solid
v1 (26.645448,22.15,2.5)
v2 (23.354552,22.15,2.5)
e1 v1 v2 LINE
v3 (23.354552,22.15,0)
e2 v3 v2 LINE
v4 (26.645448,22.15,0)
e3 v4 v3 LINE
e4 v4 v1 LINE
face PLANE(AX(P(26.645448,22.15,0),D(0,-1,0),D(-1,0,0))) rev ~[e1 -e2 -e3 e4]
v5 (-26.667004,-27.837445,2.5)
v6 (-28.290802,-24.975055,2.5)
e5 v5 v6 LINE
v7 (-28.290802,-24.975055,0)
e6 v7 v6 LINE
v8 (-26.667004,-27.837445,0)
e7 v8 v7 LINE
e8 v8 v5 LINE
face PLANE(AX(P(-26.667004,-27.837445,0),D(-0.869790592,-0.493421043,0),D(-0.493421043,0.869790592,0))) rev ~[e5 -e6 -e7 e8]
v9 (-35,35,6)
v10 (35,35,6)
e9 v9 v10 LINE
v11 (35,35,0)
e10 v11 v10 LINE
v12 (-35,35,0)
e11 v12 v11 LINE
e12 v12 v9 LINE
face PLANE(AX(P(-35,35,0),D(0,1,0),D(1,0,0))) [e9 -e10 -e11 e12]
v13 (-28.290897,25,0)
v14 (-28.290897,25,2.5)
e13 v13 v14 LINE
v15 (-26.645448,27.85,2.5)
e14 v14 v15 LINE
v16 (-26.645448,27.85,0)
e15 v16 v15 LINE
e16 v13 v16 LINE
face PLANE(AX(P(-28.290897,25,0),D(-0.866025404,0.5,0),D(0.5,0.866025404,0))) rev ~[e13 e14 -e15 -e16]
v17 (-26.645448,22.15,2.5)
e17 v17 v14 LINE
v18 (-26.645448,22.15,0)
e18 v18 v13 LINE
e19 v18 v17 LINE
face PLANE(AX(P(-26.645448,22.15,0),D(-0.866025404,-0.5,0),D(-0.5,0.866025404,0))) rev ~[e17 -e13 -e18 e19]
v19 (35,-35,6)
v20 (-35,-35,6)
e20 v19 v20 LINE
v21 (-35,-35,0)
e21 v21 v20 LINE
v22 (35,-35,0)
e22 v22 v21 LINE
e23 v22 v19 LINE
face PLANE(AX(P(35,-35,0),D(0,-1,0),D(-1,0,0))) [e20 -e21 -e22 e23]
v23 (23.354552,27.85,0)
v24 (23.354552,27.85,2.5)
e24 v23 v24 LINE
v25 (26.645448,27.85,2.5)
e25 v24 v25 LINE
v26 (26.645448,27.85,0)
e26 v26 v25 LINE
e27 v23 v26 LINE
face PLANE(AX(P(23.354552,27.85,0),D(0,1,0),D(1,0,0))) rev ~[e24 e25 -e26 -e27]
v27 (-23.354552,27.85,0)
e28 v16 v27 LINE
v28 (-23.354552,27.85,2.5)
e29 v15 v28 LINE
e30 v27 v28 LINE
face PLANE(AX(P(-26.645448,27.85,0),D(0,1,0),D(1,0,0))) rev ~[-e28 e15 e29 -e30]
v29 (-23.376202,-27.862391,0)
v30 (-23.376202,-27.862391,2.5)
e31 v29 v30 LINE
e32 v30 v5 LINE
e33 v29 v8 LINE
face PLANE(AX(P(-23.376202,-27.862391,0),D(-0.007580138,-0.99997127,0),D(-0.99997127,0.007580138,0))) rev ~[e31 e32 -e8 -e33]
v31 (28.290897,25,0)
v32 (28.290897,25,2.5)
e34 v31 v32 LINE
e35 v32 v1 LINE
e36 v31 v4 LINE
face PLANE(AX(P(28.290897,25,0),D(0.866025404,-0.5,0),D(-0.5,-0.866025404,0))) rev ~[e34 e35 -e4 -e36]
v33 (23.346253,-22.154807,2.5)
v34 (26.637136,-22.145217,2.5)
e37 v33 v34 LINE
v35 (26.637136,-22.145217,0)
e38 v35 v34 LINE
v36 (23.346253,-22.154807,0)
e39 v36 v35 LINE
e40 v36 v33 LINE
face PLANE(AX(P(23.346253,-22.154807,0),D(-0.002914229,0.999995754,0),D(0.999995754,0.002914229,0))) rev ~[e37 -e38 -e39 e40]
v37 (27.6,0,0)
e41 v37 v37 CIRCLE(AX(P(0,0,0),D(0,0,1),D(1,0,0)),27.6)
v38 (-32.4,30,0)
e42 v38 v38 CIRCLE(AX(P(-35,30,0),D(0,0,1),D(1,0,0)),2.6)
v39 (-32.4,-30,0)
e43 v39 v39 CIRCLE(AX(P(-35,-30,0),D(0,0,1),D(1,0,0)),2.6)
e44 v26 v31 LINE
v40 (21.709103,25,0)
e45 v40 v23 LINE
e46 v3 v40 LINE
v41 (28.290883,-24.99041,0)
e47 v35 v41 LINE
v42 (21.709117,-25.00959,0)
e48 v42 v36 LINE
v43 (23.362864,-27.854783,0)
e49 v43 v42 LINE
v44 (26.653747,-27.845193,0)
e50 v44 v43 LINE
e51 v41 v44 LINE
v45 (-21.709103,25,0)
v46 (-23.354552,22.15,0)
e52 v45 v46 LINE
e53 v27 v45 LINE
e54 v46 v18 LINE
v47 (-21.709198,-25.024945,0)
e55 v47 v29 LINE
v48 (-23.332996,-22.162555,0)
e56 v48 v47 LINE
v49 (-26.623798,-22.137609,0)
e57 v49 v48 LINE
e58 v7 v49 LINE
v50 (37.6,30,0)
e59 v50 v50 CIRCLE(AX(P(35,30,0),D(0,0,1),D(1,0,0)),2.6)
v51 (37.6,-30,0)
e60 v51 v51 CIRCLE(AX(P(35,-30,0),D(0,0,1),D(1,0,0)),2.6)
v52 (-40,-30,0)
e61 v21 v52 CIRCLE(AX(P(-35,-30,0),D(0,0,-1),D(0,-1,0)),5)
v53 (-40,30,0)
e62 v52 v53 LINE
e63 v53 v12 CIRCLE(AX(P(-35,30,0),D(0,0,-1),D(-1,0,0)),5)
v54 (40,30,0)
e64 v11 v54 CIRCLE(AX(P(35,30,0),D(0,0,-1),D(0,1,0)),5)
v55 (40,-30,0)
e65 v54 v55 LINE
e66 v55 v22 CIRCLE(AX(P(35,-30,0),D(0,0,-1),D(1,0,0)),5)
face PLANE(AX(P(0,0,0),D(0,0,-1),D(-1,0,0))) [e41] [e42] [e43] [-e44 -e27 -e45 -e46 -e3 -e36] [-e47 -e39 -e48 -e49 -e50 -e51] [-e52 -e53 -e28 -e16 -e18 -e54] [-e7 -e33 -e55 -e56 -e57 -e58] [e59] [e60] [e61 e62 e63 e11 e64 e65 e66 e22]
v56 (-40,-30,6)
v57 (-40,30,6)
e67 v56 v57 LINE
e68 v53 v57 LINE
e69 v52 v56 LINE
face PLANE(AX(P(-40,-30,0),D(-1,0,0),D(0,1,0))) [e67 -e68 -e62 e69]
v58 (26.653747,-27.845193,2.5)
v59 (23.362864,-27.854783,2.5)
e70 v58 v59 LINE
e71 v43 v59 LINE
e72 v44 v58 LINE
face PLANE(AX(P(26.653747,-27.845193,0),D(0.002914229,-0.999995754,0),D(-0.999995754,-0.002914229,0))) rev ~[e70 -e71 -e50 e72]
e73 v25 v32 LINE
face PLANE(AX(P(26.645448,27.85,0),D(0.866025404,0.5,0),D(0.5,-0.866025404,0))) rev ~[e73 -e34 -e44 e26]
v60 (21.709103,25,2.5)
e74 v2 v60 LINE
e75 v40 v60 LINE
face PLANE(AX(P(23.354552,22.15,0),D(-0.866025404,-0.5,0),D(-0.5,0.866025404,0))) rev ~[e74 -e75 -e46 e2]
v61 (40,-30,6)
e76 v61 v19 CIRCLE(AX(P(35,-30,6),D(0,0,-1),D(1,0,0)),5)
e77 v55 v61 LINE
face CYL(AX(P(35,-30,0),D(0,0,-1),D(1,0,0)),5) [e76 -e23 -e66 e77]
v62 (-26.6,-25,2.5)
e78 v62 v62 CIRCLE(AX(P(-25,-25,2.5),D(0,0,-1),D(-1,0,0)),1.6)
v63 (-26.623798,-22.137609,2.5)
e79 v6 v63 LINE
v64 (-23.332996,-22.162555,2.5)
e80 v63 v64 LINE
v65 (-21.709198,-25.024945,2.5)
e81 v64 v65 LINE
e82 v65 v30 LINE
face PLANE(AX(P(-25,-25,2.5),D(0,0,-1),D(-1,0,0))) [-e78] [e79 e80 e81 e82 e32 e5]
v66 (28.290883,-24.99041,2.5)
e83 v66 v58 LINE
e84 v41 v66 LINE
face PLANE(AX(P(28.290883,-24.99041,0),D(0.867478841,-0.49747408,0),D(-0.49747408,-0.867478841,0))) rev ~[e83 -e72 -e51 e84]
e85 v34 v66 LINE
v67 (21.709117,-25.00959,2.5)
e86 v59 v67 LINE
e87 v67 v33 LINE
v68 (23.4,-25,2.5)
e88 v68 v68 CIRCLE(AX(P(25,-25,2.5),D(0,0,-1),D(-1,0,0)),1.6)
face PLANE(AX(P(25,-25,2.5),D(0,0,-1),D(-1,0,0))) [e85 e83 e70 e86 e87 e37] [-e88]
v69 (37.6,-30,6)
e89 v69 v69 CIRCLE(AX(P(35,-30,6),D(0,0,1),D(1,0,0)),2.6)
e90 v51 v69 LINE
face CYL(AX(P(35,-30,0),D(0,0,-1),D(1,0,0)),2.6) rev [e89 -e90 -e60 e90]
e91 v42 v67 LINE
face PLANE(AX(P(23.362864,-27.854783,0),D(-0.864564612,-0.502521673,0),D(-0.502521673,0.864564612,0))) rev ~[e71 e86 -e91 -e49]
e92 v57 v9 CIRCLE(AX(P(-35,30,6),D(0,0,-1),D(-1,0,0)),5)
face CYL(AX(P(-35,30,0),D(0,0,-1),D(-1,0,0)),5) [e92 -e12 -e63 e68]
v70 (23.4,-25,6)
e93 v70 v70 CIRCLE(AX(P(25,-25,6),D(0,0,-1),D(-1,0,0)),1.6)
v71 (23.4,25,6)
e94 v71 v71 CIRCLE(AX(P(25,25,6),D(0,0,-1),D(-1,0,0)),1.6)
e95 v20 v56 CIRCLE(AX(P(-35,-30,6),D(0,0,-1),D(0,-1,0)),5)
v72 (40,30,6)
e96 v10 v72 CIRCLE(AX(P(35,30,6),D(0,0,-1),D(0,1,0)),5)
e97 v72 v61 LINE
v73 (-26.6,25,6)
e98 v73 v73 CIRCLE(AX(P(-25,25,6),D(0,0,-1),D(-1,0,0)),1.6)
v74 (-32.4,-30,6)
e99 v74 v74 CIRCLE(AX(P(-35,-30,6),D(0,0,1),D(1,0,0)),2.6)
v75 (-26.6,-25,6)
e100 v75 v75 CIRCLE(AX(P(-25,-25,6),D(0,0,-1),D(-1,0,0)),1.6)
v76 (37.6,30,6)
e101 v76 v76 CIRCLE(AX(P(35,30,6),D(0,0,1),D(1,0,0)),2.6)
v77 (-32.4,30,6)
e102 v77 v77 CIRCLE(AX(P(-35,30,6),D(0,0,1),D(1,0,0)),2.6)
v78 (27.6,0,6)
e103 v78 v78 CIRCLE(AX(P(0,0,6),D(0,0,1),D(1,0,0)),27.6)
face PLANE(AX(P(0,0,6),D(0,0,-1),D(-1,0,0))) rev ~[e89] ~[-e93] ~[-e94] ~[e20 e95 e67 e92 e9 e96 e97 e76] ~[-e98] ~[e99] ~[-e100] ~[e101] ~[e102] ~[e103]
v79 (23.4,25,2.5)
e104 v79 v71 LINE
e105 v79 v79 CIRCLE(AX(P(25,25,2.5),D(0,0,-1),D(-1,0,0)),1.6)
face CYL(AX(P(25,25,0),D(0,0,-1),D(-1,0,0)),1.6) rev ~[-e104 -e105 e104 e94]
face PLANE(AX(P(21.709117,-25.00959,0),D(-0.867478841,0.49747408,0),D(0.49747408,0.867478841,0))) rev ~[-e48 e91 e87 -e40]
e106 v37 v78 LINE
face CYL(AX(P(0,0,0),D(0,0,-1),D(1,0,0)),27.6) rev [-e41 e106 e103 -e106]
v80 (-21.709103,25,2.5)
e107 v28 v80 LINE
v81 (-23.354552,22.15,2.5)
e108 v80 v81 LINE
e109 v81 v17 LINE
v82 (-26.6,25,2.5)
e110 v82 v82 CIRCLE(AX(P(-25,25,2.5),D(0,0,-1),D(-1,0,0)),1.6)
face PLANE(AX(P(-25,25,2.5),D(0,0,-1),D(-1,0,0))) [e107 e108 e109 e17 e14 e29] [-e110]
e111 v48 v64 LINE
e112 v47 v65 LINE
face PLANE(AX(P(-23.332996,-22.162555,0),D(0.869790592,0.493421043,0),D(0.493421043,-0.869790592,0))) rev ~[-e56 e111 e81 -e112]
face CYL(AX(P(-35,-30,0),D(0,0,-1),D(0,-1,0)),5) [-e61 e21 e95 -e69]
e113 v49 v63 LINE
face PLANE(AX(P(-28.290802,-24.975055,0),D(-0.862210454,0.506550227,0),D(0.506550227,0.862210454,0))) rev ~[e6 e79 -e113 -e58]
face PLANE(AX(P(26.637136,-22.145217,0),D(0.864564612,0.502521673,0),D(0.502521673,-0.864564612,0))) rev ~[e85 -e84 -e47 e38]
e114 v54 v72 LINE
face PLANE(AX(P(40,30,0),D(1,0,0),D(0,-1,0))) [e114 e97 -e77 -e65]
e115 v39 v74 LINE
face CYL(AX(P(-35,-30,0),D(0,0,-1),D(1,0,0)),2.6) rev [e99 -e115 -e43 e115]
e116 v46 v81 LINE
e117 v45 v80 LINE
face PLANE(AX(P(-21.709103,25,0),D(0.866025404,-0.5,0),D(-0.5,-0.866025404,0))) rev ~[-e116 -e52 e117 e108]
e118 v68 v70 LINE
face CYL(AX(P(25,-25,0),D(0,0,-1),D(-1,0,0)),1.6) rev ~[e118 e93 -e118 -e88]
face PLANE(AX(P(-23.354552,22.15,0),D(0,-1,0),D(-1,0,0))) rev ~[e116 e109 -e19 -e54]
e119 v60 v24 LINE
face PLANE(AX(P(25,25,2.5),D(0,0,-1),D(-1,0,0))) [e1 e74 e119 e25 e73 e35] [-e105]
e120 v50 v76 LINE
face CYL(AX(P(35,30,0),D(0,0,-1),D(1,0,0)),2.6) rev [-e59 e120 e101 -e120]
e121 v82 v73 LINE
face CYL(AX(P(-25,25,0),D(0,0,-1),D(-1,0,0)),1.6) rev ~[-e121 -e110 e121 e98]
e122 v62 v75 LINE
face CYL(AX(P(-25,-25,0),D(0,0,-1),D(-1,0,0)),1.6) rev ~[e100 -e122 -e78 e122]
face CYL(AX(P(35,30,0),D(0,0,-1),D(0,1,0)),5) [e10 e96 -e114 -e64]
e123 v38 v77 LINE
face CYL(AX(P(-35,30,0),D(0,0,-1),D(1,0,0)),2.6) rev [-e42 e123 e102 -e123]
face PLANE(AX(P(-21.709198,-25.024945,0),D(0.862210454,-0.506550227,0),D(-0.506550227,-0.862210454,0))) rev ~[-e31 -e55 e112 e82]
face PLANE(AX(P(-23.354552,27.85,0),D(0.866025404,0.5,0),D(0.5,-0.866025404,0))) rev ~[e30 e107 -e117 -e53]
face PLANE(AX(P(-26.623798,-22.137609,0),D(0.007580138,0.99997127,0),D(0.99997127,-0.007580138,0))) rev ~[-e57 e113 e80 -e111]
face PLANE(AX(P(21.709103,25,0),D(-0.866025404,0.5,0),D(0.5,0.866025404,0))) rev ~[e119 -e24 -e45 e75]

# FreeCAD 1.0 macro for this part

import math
import FreeCAD as App
import Part
import Sketcher

doc = App.newDocument("Part")
params = doc.addObject("Spreadsheet::Sheet", "Params")
for row, (alias, value) in enumerate([
    ("sketch1_radius", "5 mm"),
    ("sketch1_diameter", "5.2 mm"),
    ("sketch1_diameter2", "55.2 mm"),
    ("sketch1_width", "70 mm"),
    ("sketch1_height", "60 mm"),
    ("pad1_length", "6 mm"),
    ("sketch2_diameter", "3.2 mm"),
    ("pocket2_length", "2.5 mm"),
], start=1):
    params.set(f"A{row}", alias)
    params.set(f"B{row}", "=" + value)
    params.setAlias(f"B{row}", alias)

body = doc.addObject("PartDesign::Body", "Body")

sketch1 = doc.addObject("Sketcher::SketchObject", "Sketch")
body.addObject(sketch1)
sketch1.AttachmentSupport = (doc.XY_Plane, [""])
sketch1.MapMode = "FlatFace"
sketch1.addGeometry([
    Part.LineSegment(App.Vector(35, 35, 0), App.Vector(-35, 35, 0)),
    Part.ArcOfCircle(Part.Circle(App.Vector(-35, 30, 0), App.Vector(0, 0, 1), 5), math.radians(90), math.radians(180)),
    Part.LineSegment(App.Vector(-40, 30, 0), App.Vector(-40, -30, 0)),
    Part.ArcOfCircle(Part.Circle(App.Vector(-35, -30, 0), App.Vector(0, 0, 1), 5), math.radians(180), math.radians(270)),
    Part.LineSegment(App.Vector(-35, -35, 0), App.Vector(35, -35, 0)),
    Part.ArcOfCircle(Part.Circle(App.Vector(35, -30, 0), App.Vector(0, 0, 1), 5), math.radians(-90), math.radians(0)),
    Part.LineSegment(App.Vector(40, -30, 0), App.Vector(40, 30, 0)),
    Part.ArcOfCircle(Part.Circle(App.Vector(35, 30, 0), App.Vector(0, 0, 1), 5), math.radians(0), math.radians(90)),
    Part.Circle(App.Vector(35, -30, 0), App.Vector(0, 0, 1), 2.6),
    Part.Circle(App.Vector(-35, -30, 0), App.Vector(0, 0, 1), 2.6),
    Part.Circle(App.Vector(35, 30, 0), App.Vector(0, 0, 1), 2.6),
    Part.Circle(App.Vector(0, 0, 0), App.Vector(0, 0, 1), 27.6),
    Part.Circle(App.Vector(-35, 30, 0), App.Vector(0, 0, 1), 2.6),
], False)
sketch1.addConstraint([
    Sketcher.Constraint("Tangent", 0, 2, 1, 1),
    Sketcher.Constraint("Tangent", 1, 2, 2, 1),
    Sketcher.Constraint("Tangent", 2, 2, 3, 1),
    Sketcher.Constraint("Tangent", 3, 2, 4, 1),
    Sketcher.Constraint("Tangent", 4, 2, 5, 1),
    Sketcher.Constraint("Tangent", 5, 2, 6, 1),
    Sketcher.Constraint("Tangent", 6, 2, 7, 1),
    Sketcher.Constraint("Tangent", 7, 2, 0, 1),
    Sketcher.Constraint("Horizontal", 0),
    Sketcher.Constraint("Vertical", 2),
    Sketcher.Constraint("Horizontal", 4),
    Sketcher.Constraint("Vertical", 6),
    Sketcher.Constraint("Coincident", 11, 3, -1, 1),
    Sketcher.Constraint("Coincident", 8, 3, 5, 3),
    Sketcher.Constraint("Coincident", 9, 3, 3, 3),
    Sketcher.Constraint("Coincident", 10, 3, 7, 3),
    Sketcher.Constraint("Coincident", 12, 3, 1, 3),
    Sketcher.Constraint("Equal", 1, 3),
    Sketcher.Constraint("Equal", 3, 5),
    Sketcher.Constraint("Equal", 5, 7),
    Sketcher.Constraint("Equal", 8, 9),
    Sketcher.Constraint("Equal", 9, 10),
    Sketcher.Constraint("Equal", 10, 12),
    Sketcher.Constraint("Symmetric", 1, 3, 5, 3, -1, 1),
    Sketcher.Constraint("Radius", 1, 5.0),
    Sketcher.Constraint("Diameter", 8, 5.2),
    Sketcher.Constraint("Diameter", 11, 55.2),
    Sketcher.Constraint("DistanceX", 0, 2, 0, 1, 70.0),
    Sketcher.Constraint("DistanceY", 2, 2, 2, 1, 60.0),
])
sketch1.setExpression("Constraints[24]", "Params.sketch1_radius")
sketch1.setExpression("Constraints[25]", "Params.sketch1_diameter")
sketch1.setExpression("Constraints[26]", "Params.sketch1_diameter2")
sketch1.setExpression("Constraints[27]", "Params.sketch1_width")
sketch1.setExpression("Constraints[28]", "Params.sketch1_height")
pad1 = doc.addObject("PartDesign::Pad", "Pad")
body.addObject(pad1)
pad1.Profile = sketch1
pad1.setExpression("Length", "Params.pad1_length")

sketch2 = doc.addObject("Sketcher::SketchObject", "Sketch001")
body.addObject(sketch2)
sketch2.AttachmentSupport = (doc.XY_Plane, [""])
sketch2.MapMode = "FlatFace"
sketch2.addGeometry([
    Part.Circle(App.Vector(25, 25, 0), App.Vector(0, 0, 1), 1.6),
    Part.Circle(App.Vector(-25, 25, 0), App.Vector(0, 0, 1), 1.6),
    Part.Circle(App.Vector(25, -25, 0), App.Vector(0, 0, 1), 1.6),
    Part.Circle(App.Vector(-25, -25, 0), App.Vector(0, 0, 1), 1.6),
], False)
sketch2.addConstraint([
    Sketcher.Constraint("Equal", 0, 1),
    Sketcher.Constraint("Equal", 1, 2),
    Sketcher.Constraint("Equal", 2, 3),
    Sketcher.Constraint("Symmetric", 1, 3, 2, 3, -1, 1),
    Sketcher.Constraint("Symmetric", 0, 3, 3, 3, -1, 1),
    Sketcher.Constraint("Symmetric", 0, 3, 1, 3, -2),
    Sketcher.Constraint("Diameter", 0, 3.2),
    Sketcher.Constraint("DistanceX", -1, 1, 0, 3, 25.0),
    Sketcher.Constraint("DistanceY", -1, 1, 0, 3, 25.0),
])
sketch2.setExpression("Constraints[6]", "Params.sketch2_diameter")
pocket1 = doc.addObject("PartDesign::Pocket", "Pocket")
body.addObject(pocket1)
pocket1.Profile = sketch2
pocket1.Type = "ThroughAll"
pocket1.Reversed = True

sketch3 = doc.addObject("Sketcher::SketchObject", "Sketch002")
body.addObject(sketch3)
sketch3.AttachmentSupport = (doc.XY_Plane, [""])
sketch3.MapMode = "FlatFace"
sketch3.addGeometry([
    Part.LineSegment(App.Vector(28.290897, 25, 0), App.Vector(26.645448, 22.15, 0)),
    Part.LineSegment(App.Vector(26.645448, 22.15, 0), App.Vector(23.354552, 22.15, 0)),
    Part.LineSegment(App.Vector(23.354552, 22.15, 0), App.Vector(21.709103, 25, 0)),
    Part.LineSegment(App.Vector(21.709103, 25, 0), App.Vector(23.354552, 27.85, 0)),
    Part.LineSegment(App.Vector(23.354552, 27.85, 0), App.Vector(26.645448, 27.85, 0)),
    Part.LineSegment(App.Vector(26.645448, 27.85, 0), App.Vector(28.290897, 25, 0)),
    Part.LineSegment(App.Vector(-21.709103, 25, 0), App.Vector(-23.354552, 22.15, 0)),
    Part.LineSegment(App.Vector(-23.354552, 22.15, 0), App.Vector(-26.645448, 22.15, 0)),
    Part.LineSegment(App.Vector(-26.645448, 22.15, 0), App.Vector(-28.290897, 25, 0)),
    Part.LineSegment(App.Vector(-28.290897, 25, 0), App.Vector(-26.645448, 27.85, 0)),
    Part.LineSegment(App.Vector(-26.645448, 27.85, 0), App.Vector(-23.354552, 27.85, 0)),
    Part.LineSegment(App.Vector(-23.354552, 27.85, 0), App.Vector(-21.709103, 25, 0)),
    Part.LineSegment(App.Vector(28.290883, -24.99041, 0), App.Vector(26.653747, -27.845193, 0)),
    Part.LineSegment(App.Vector(26.653747, -27.845193, 0), App.Vector(23.362864, -27.854783, 0)),
    Part.LineSegment(App.Vector(23.362864, -27.854783, 0), App.Vector(21.709117, -25.00959, 0)),
    Part.LineSegment(App.Vector(21.709117, -25.00959, 0), App.Vector(23.346253, -22.154807, 0)),
    Part.LineSegment(App.Vector(23.346253, -22.154807, 0), App.Vector(26.637136, -22.145217, 0)),
    Part.LineSegment(App.Vector(26.637136, -22.145217, 0), App.Vector(28.290883, -24.99041, 0)),
    Part.LineSegment(App.Vector(-28.290802, -24.975055, 0), App.Vector(-26.623798, -22.137609, 0)),
    Part.LineSegment(App.Vector(-26.623798, -22.137609, 0), App.Vector(-23.332996, -22.162555, 0)),
    Part.LineSegment(App.Vector(-23.332996, -22.162555, 0), App.Vector(-21.709198, -25.024945, 0)),
    Part.LineSegment(App.Vector(-21.709198, -25.024945, 0), App.Vector(-23.376202, -27.862391, 0)),
    Part.LineSegment(App.Vector(-23.376202, -27.862391, 0), App.Vector(-26.667004, -27.837445, 0)),
    Part.LineSegment(App.Vector(-26.667004, -27.837445, 0), App.Vector(-28.290802, -24.975055, 0)),
], False)
sketch3.addConstraint([
    Sketcher.Constraint("Coincident", 0, 2, 1, 1),
    Sketcher.Constraint("Coincident", 1, 2, 2, 1),
    Sketcher.Constraint("Coincident", 2, 2, 3, 1),
    Sketcher.Constraint("Coincident", 3, 2, 4, 1),
    Sketcher.Constraint("Coincident", 4, 2, 5, 1),
    Sketcher.Constraint("Coincident", 5, 2, 0, 1),
    Sketcher.Constraint("Coincident", 6, 2, 7, 1),
    Sketcher.Constraint("Coincident", 7, 2, 8, 1),
    Sketcher.Constraint("Coincident", 8, 2, 9, 1),
    Sketcher.Constraint("Coincident", 9, 2, 10, 1),
    Sketcher.Constraint("Coincident", 10, 2, 11, 1),
    Sketcher.Constraint("Coincident", 11, 2, 6, 1),
    Sketcher.Constraint("Coincident", 12, 2, 13, 1),
    Sketcher.Constraint("Coincident", 13, 2, 14, 1),
    Sketcher.Constraint("Coincident", 14, 2, 15, 1),
    Sketcher.Constraint("Coincident", 15, 2, 16, 1),
    Sketcher.Constraint("Coincident", 16, 2, 17, 1),
    Sketcher.Constraint("Coincident", 17, 2, 12, 1),
    Sketcher.Constraint("Coincident", 18, 2, 19, 1),
    Sketcher.Constraint("Coincident", 19, 2, 20, 1),
    Sketcher.Constraint("Coincident", 20, 2, 21, 1),
    Sketcher.Constraint("Coincident", 21, 2, 22, 1),
    Sketcher.Constraint("Coincident", 22, 2, 23, 1),
    Sketcher.Constraint("Coincident", 23, 2, 18, 1),
    Sketcher.Constraint("Horizontal", 1),
    Sketcher.Constraint("Horizontal", 4),
    Sketcher.Constraint("Horizontal", 7),
    Sketcher.Constraint("Horizontal", 10),
    Sketcher.Constraint("DistanceY", -1, 1, 2, 2, 25.0),
    Sketcher.Constraint("DistanceY", -1, 1, 5, 2, 25.0),
    Sketcher.Constraint("DistanceY", -1, 1, 8, 2, 25.0),
    Sketcher.Constraint("DistanceY", -1, 1, 11, 2, 25.0),
    Sketcher.Constraint("DistanceX", 6, 2, 0, 2, 50.0),
    Sketcher.Constraint("DistanceX", 6, 2, 4, 2, 50.0),
    Sketcher.Constraint("DistanceX", 7, 2, 1, 2, 50.0),
    Sketcher.Constraint("DistanceX", 7, 2, 3, 2, 50.0),
    Sketcher.Constraint("DistanceX", 8, 2, 2, 2, 50.0),
    Sketcher.Constraint("DistanceX", 9, 2, 3, 2, 50.0),
    Sketcher.Constraint("DistanceY", 1, 2, 3, 2, 5.7),
    Sketcher.Constraint("DistanceY", 6, 2, 3, 2, 5.7),
    Sketcher.Constraint("DistanceY", 7, 2, 9, 2, 5.7),
    Sketcher.Constraint("DistanceY", -1, 1, 0, 2, 22.15),
    Sketcher.Constraint("DistanceX", 20, 2, -1, 1, 21.709198),
    Sketcher.Constraint("DistanceX", 23, 2, -1, 1, 28.290802),
    Sketcher.Constraint("DistanceX", 0, 2, 12, 2, 0.008299),
    Sketcher.Constraint("DistanceX", 15, 2, 1, 2, 0.008299),
    Sketcher.Constraint("DistanceX", 8, 2, 18, 2, 1.667099),
    Sketcher.Constraint("DistanceX", 18, 2, 19, 2, 3.290802),
    Sketcher.Constraint("DistanceX", 18, 2, 20, 2, 4.9146),
    Sketcher.Constraint("DistanceY", 21, 2, 14, 2, 2.8528),
    Sketcher.Constraint("DistanceX", 22, 2, 21, 2, 3.290802),
    Sketcher.Constraint("DistanceY", 22, 2, 20, 2, 2.8125),
    Sketcher.Constraint("DistanceY", 23, 2, 19, 2, 2.8125),
    Sketcher.Constraint("DistanceX", 23, 2, 21, 2, 4.9146),
    Sketcher.Constraint("DistanceX", 1, 2, 1, 1, 3.290897),
    Sketcher.Constraint("DistanceX", 10, 1, 10, 2, 3.290897),
    Sketcher.Constraint("DistanceX", -1, 1, 0, 2, 26.645448),
    Sketcher.Constraint("DistanceY", 14, 2, -1, 1, 25.00959),
    Sketcher.Constraint("DistanceY", 17, 2, -1, 1, 24.99041),
    Sketcher.Constraint("DistanceY", 18, 2, -1, 1, 22.137609),
    Sketcher.Constraint("DistanceX", 0, 2, 5, 2, 1.645448),
    Sketcher.Constraint("DistanceX", 6, 2, 11, 2, 1.645448),
    Sketcher.Constraint("DistanceY", 13, 2, 12, 2, 0.00959),
    Sketcher.Constraint("DistanceX", 2, 2, 13, 2, 1.653761),
    Sketcher.Constraint("DistanceX", 14, 2, 12, 2, 4.944629),
    Sketcher.Constraint("DistanceY", 15, 2, 16, 2, 0.00959),
    Sketcher.Constraint("DistanceX", 14, 2, 16, 2, 4.928018),
    Sketcher.Constraint("DistanceX", 13, 2, 17, 2, 4.928018),
    Sketcher.Constraint("DistanceY", 20, 2, 19, 2, 2.862391),
    Sketcher.Constraint("DistanceY", 20, 2, 15, 2, 2.870138),
    Sketcher.Constraint("Distance", 12, 3.290897),
    Sketcher.Constraint("Distance", 15, 3.290897),
])
pocket2 = doc.addObject("PartDesign::Pocket", "Pocket001")
body.addObject(pocket2)
pocket2.Profile = sketch3
pocket2.setExpression("Length", "Params.pocket2_length")
pocket2.Reversed = True

doc.recompute()
